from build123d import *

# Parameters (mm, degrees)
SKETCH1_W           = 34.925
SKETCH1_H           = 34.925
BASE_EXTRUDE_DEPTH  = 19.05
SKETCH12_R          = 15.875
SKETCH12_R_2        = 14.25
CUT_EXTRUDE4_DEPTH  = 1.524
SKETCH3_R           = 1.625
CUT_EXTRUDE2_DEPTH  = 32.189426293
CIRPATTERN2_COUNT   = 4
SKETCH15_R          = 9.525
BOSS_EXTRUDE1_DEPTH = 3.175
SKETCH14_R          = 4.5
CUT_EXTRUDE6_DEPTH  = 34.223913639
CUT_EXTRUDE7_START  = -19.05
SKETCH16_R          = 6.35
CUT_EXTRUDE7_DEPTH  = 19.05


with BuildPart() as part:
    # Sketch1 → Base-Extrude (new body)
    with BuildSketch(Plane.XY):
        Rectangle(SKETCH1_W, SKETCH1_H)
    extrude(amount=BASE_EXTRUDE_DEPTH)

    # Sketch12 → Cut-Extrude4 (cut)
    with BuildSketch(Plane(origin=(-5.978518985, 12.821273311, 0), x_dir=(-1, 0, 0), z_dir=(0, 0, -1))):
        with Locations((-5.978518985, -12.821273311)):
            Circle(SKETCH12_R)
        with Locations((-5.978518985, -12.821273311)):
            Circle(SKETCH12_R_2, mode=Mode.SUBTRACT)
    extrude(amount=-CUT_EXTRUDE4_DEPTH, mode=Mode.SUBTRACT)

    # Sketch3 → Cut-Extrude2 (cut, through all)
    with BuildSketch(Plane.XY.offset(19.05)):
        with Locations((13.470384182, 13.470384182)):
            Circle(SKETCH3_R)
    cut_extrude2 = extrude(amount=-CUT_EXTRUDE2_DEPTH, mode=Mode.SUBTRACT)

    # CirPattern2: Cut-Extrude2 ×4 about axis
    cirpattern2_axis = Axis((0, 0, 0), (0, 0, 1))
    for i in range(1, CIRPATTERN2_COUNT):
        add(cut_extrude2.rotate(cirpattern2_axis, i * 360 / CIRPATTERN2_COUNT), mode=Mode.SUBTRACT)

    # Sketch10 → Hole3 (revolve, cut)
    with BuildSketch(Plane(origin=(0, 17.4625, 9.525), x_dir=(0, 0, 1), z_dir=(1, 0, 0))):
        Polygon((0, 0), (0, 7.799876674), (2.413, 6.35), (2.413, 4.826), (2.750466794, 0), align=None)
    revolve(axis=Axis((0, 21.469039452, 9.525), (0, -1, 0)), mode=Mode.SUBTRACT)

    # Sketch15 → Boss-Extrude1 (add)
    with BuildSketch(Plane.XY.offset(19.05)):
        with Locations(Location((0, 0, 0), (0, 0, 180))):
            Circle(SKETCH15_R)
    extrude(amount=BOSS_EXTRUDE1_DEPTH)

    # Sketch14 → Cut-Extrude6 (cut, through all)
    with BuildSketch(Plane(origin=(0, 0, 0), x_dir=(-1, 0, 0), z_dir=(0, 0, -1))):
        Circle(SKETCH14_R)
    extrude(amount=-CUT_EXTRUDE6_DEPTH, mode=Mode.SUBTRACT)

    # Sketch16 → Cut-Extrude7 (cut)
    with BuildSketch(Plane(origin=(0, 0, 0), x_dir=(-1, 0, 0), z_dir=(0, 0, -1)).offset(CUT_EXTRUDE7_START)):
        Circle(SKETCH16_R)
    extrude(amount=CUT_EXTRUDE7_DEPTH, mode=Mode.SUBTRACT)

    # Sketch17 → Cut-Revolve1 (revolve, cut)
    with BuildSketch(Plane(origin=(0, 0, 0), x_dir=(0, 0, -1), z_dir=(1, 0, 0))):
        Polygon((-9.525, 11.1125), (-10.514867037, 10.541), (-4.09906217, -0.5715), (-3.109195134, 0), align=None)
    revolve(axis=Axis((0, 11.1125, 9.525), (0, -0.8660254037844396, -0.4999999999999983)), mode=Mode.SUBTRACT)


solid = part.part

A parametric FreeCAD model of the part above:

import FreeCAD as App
import Part
import Sketcher
Q = App.Units.Quantity

doc = App.newDocument("Part")
body = doc.addObject("PartDesign::Body", "Body")

sketch1 = body.newObject("Sketcher::SketchObject", "Sketch")
sketch1.AttachmentSupport = (doc.getObject("XY_Plane"), [""])
sketch1.MapMode = "FlatFace"
sketch1.addGeometry(Part.LineSegment(App.Vector(-17.4625, 17.4625, 0), App.Vector(-17.4625, -17.4625, 0)), False)
sketch1.addGeometry(Part.LineSegment(App.Vector(-17.4625, -17.4625, 0), App.Vector(17.4625, -17.4625, 0)), False)
sketch1.addGeometry(Part.LineSegment(App.Vector(17.4625, -17.4625, 0), App.Vector(17.4625, 17.4625, 0)), False)
sketch1.addGeometry(Part.LineSegment(App.Vector(17.4625, 17.4625, 0), App.Vector(-17.4625, 17.4625, 0)), False)
sketch1.addConstraint(Sketcher.Constraint("Coincident", 0, 2, 1, 1))
sketch1.addConstraint(Sketcher.Constraint("Coincident", 1, 2, 2, 1))
sketch1.addConstraint(Sketcher.Constraint("Coincident", 2, 2, 3, 1))
sketch1.addConstraint(Sketcher.Constraint("Coincident", 3, 2, 0, 1))
sketch1.addConstraint(Sketcher.Constraint("Vertical", 0))
sketch1.addConstraint(Sketcher.Constraint("Horizontal", 1))
sketch1.addConstraint(Sketcher.Constraint("Vertical", 2))
sketch1.addConstraint(Sketcher.Constraint("Horizontal", 3))
sketch1.addConstraint(Sketcher.Constraint("Symmetric", 0, 2, 2, 2, -1, 1))
sketch1.addConstraint(Sketcher.Constraint("Equal", 3, 0))
sketch1.addConstraint(Sketcher.Constraint("DistanceX", 1, 1, 1, 2, Q("1.375 in")))
pad1 = body.newObject("PartDesign::Pad", "Pad")
pad1.Profile = sketch1
pad1.Length = Q("0.75 in")

sketch2 = body.newObject("Sketcher::SketchObject", "Sketch001")
sketch2.AttachmentSupport = (doc.getObject("XY_Plane"), [""])
sketch2.MapMode = "FlatFace"
sketch2.addGeometry(Part.Circle(App.Vector(0, 0, 0), App.Vector(0, 0, 1), 15.875), False)
sketch2.addGeometry(Part.Circle(App.Vector(0, 0, 0), App.Vector(0, 0, 1), 14.25), False)
sketch2.addConstraint(Sketcher.Constraint("Coincident", 0, 3, -1, 1))
sketch2.addConstraint(Sketcher.Constraint("Coincident", 1, 3, -1, 1))
sketch2.addConstraint(Sketcher.Constraint("Diameter", 0, Q("1.25 in")))
sketch2.addConstraint(Sketcher.Constraint("Diameter", 1, 28.5))
pocket1 = body.newObject("PartDesign::Pocket", "Pocket")
pocket1.Profile = sketch2
pocket1.Length = Q("0.06 in")
pocket1.Reversed = True

sketch3 = body.newObject("Sketcher::SketchObject", "Sketch002")
sketch3.AttachmentSupport = (doc.getObject("XY_Plane"), [""])
sketch3.MapMode = "FlatFace"
sketch3.AttachmentOffset = App.Placement(App.Vector(0, 0, 0.75 * 25.4), App.Rotation())
sketch3.addGeometry(Part.Circle(App.Vector(13.470384, 13.470384, 0), App.Vector(0, 0, 1), 1.625), False)
sketch3.addConstraint(Sketcher.Constraint("Diameter", 0, 3.25))
sketch3.addConstraint(Sketcher.Constraint("DistanceX", -1, 1, 0, 3, 13.470384))
sketch3.addConstraint(Sketcher.Constraint("DistanceY", -1, 1, 0, 3, 13.470384))
pocket2 = body.newObject("PartDesign::Pocket", "Pocket001")
pocket2.Profile = sketch3
pocket2.Type = "ThroughAll"
doc.recompute()

polarpattern = body.newObject("PartDesign::PolarPattern", "PolarPattern")
polarpattern.Originals = [pocket2]
polarpattern.Axis = (doc.getObject("Z_Axis"), [""])
polarpattern.Angle = 360
polarpattern.Occurrences = 4
body.Tip = polarpattern

sketch4 = body.newObject("Sketcher::SketchObject", "Sketch003")
sketch4.AttachmentSupport = (doc.getObject("YZ_Plane"), [""])
sketch4.MapMode = "FlatFace"
sketch4.addGeometry(Part.LineSegment(App.Vector(9.662623, 9.525, 0), App.Vector(17.4625, 9.525, 0)), False)
sketch4.addGeometry(Part.LineSegment(App.Vector(17.4625, 9.525, 0), App.Vector(17.4625, 12.275467, 0)), False)
sketch4.addGeometry(Part.LineSegment(App.Vector(17.4625, 12.275467, 0), App.Vector(12.6365, 11.938, 0)), False)
sketch4.addGeometry(Part.LineSegment(App.Vector(12.6365, 11.938, 0), App.Vector(11.1125, 11.938, 0)), False)
sketch4.addGeometry(Part.LineSegment(App.Vector(11.1125, 11.938, 0), App.Vector(9.662623, 9.525, 0)), False)
sketch4.addGeometry(Part.LineSegment(App.Vector(17.4625, 9.525, 0), App.Vector(9.662623, 9.525, 0)), True)
sketch4.addConstraint(Sketcher.Constraint("Coincident", 0, 2, 1, 1))
sketch4.addConstraint(Sketcher.Constraint("Coincident", 1, 2, 2, 1))
sketch4.addConstraint(Sketcher.Constraint("Coincident", 2, 2, 3, 1))
sketch4.addConstraint(Sketcher.Constraint("Coincident", 3, 2, 4, 1))
sketch4.addConstraint(Sketcher.Constraint("Coincident", 4, 2, 0, 1))
sketch4.addConstraint(Sketcher.Constraint("Horizontal", 0))
sketch4.addConstraint(Sketcher.Constraint("Vertical", 1))
sketch4.addConstraint(Sketcher.Constraint("Horizontal", 3))
sketch4.addConstraint(Sketcher.Constraint("Horizontal", 5))
sketch4.addConstraint(Sketcher.Constraint("Coincident", 5, 1, 0, 2))
sketch4.addConstraint(Sketcher.Constraint("Equal", 0, 5))
sketch4.addConstraint(Sketcher.Constraint("Angle", 2, Q("-176 deg")))
sketch4.addConstraint(Sketcher.Constraint("Angle", 4, Q("-121 deg")))
sketch4.addConstraint(Sketcher.Constraint("DistanceX", 3, 2, 3, 1, Q("0.06 in")))
sketch4.addConstraint(Sketcher.Constraint("DistanceY", -1, 1, 2, 2, Q("0.47 in")))
sketch4.addConstraint(Sketcher.Constraint("DistanceX", 2, 2, 1, 2, Q("0.19 in")))
sketch4.addConstraint(Sketcher.Constraint("DistanceX", -1, 1, 0, 2, Q("0.6875 in")))
sketch4.addConstraint(Sketcher.Constraint("DistanceY", -1, 1, 0, 2, Q("0.375 in")))
groove = body.newObject("PartDesign::Groove", "Groove")
groove.Profile = sketch4
groove.ReferenceAxis = (sketch4, ["Axis0"])
groove.Angle = 360

sketch5 = body.newObject("Sketcher::SketchObject", "Sketch004")
sketch5.AttachmentSupport = (doc.getObject("XY_Plane"), [""])
sketch5.MapMode = "FlatFace"
sketch5.AttachmentOffset = App.Placement(App.Vector(0, 0, 0.75 * 25.4), App.Rotation())
sketch5.addGeometry(Part.Circle(App.Vector(0, 0, 0), App.Vector(0, 0, 1), 9.525), False)
sketch5.addConstraint(Sketcher.Constraint("Coincident", 0, 3, -1, 1))
sketch5.addConstraint(Sketcher.Constraint("Diameter", 0, Q("0.75 in")))
pad2 = body.newObject("PartDesign::Pad", "Pad001")
pad2.Profile = sketch5
pad2.Length = Q("0.125 in")

sketch6 = body.newObject("Sketcher::SketchObject", "Sketch005")
sketch6.AttachmentSupport = (doc.getObject("XY_Plane"), [""])
sketch6.MapMode = "FlatFace"
sketch6.addGeometry(Part.Circle(App.Vector(0, 0, 0), App.Vector(0, 0, 1), 4.5), False)
sketch6.addConstraint(Sketcher.Constraint("Coincident", 0, 3, -1, 1))
sketch6.addConstraint(Sketcher.Constraint("Diameter", 0, 9.0))
pocket3 = body.newObject("PartDesign::Pocket", "Pocket002")
pocket3.Profile = sketch6
pocket3.Type = "ThroughAll"
pocket3.Reversed = True

sketch7 = body.newObject("Sketcher::SketchObject", "Sketch006")
sketch7.AttachmentSupport = (doc.getObject("XY_Plane"), [""])
sketch7.MapMode = "FlatFace"
sketch7.AttachmentOffset = App.Placement(App.Vector(0, 0, 0.75 * 25.4), App.Rotation())
sketch7.addGeometry(Part.Circle(App.Vector(0, 0, 0), App.Vector(0, 0, 1), 6.35), False)
sketch7.addConstraint(Sketcher.Constraint("Coincident", 0, 3, -1, 1))
sketch7.addConstraint(Sketcher.Constraint("Diameter", 0, Q("0.5 in")))
pocket4 = body.newObject("PartDesign::Pocket", "Pocket003")
pocket4.Profile = sketch7
pocket4.Length = Q("0.75 in")

sketch8 = body.newObject("Sketcher::SketchObject", "Sketch007")
sketch8.AttachmentSupport = (doc.getObject("YZ_Plane"), [""])
sketch8.MapMode = "FlatFace"
sketch8.addGeometry(Part.LineSegment(App.Vector(11.1125, 9.525, 0), App.Vector(10.541, 10.514867, 0)), False)
sketch8.addGeometry(Part.LineSegment(App.Vector(10.541, 10.514867, 0), App.Vector(-0.5715, 4.099062, 0)), False)
sketch8.addGeometry(Part.LineSegment(App.Vector(-0.5715, 4.099062, 0), App.Vector(0, 3.109195, 0)), False)
sketch8.addGeometry(Part.LineSegment(App.Vector(0, 3.109195, 0), App.Vector(11.1125, 9.525, 0)), False)
sketch8.addGeometry(Part.LineSegment(App.Vector(11.1125, 9.525, 0), App.Vector(0, 3.109195, 0)), True)
sketch8.addConstraint(Sketcher.Constraint("Coincident", 0, 2, 1, 1))
sketch8.addConstraint(Sketcher.Constraint("Coincident", 1, 2, 2, 1))
sketch8.addConstraint(Sketcher.Constraint("Coincident", 2, 2, 3, 1))
sketch8.addConstraint(Sketcher.Constraint("Coincident", 3, 2, 0, 1))
sketch8.addConstraint(Sketcher.Constraint("Coincident", 4, 1, 3, 2))
sketch8.addConstraint(Sketcher.Constraint("Coincident", 4, 2, 2, 2))
sketch8.addConstraint(Sketcher.Constraint("PointOnObject", 2, 2, -2))
sketch8.addConstraint(Sketcher.Constraint("Perpendicular", 0, 1))
sketch8.addConstraint(Sketcher.Constraint("Perpendicular", 1, 2))
sketch8.addConstraint(Sketcher.Constraint("Perpendicular", 2, 3))
sketch8.addConstraint(Sketcher.Constraint("Angle", 0, Q("120 deg")))
sketch8.addConstraint(Sketcher.Constraint("DistanceX", 1, 2, 3, 2, Q("0.46 in")))
sketch8.addConstraint(Sketcher.Constraint("Distance", 0, Q("0.045 in")))
sketch8.addConstraint(Sketcher.Constraint("DistanceY", -1, 1, 3, 2, Q("0.375 in")))
groove2 = body.newObject("PartDesign::Groove", "Groove001")
groove2.Profile = sketch8
groove2.ReferenceAxis = (sketch8, ["Axis0"])
groove2.Angle = 360

doc.recompute()
